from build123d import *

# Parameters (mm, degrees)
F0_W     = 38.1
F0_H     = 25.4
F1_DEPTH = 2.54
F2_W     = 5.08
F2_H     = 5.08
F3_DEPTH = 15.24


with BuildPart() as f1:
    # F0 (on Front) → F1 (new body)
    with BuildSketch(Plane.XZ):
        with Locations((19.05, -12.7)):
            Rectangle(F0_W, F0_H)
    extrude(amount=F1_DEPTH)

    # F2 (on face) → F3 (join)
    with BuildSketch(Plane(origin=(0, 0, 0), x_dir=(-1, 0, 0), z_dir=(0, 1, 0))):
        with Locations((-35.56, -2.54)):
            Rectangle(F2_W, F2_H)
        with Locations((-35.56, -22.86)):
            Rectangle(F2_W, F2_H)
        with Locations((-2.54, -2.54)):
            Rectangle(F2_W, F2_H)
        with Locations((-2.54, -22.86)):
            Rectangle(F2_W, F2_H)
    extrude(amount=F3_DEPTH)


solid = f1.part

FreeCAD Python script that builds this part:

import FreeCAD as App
import Part
import Sketcher
from FreeCAD import Vector
Q = App.Units.Quantity


def add_polygon(sketch, points):
    """Adds a closed chain of lines whose ends are joined by coincident constraints."""
    first, n = sketch.GeometryCount, len(points)
    for a, b in zip(points, points[1:] + points[:1]):
        sketch.addGeometry(Part.LineSegment(App.Vector(*a, 0), App.Vector(*b, 0)), False)
    for i in range(n):
        sketch.addConstraint(Sketcher.Constraint("Coincident", first + i, 2, first + (i + 1) % n, 1))

doc = App.newDocument("Part")
body = doc.addObject("PartDesign::Body", "Body")

# Sketch on XZ plane
sketch1 = body.newObject("Sketcher::SketchObject", "Sketch")
sketch1.AttachmentSupport = (doc.getObject("XZ_Plane"), [""])
sketch1.MapMode = "FlatFace"
add_polygon(sketch1, [(0, 0), (0, -25), (38, -25), (38, 0)])  # lines 0-3
sketch1.addConstraint(Sketcher.Constraint("Vertical", 0))
sketch1.addConstraint(Sketcher.Constraint("Horizontal", 1))
sketch1.addConstraint(Sketcher.Constraint("Vertical", 2))
sketch1.addConstraint(Sketcher.Constraint("Horizontal", 3))
sketch1.addConstraint(Sketcher.Constraint("Coincident", 3, 2, -1, 1))
sketch1.addConstraint(Sketcher.Constraint("DistanceY", 0, 2, 0, 1, Q("1 in")))
sketch1.addConstraint(Sketcher.Constraint("DistanceX", 1, 1, 1, 2, Q("1.5 in")))
pad1 = body.newObject("PartDesign::Pad", "Pad")
pad1.Profile = sketch1
pad1.Length = Q("0.1 in")

# Sketch on XZ plane
sketch2 = body.newObject("Sketcher::SketchObject", "Sketch001")
sketch2.AttachmentSupport = (doc.getObject("XZ_Plane"), [""])
sketch2.MapMode = "FlatFace"
add_polygon(sketch2, [(38, 0), (38, -5), (33, -5), (33, 0)])  # lines 0-3
add_polygon(sketch2, [(38, -20), (38, -25), (33, -25), (33, -20)])  # lines 4-7
add_polygon(sketch2, [(5, 0), (5, -5), (0, -5), (0, 0)])  # lines 8-11
add_polygon(sketch2, [(5, -20), (5, -25), (0, -25), (0, -20)])  # lines 12-15
sketch2.addConstraint(Sketcher.Constraint("Vertical", 0))
sketch2.addConstraint(Sketcher.Constraint("Horizontal", 1))
sketch2.addConstraint(Sketcher.Constraint("Vertical", 2))
sketch2.addConstraint(Sketcher.Constraint("Horizontal", 3))
sketch2.addConstraint(Sketcher.Constraint("Vertical", 4))
sketch2.addConstraint(Sketcher.Constraint("Horizontal", 5))
sketch2.addConstraint(Sketcher.Constraint("Vertical", 6))
sketch2.addConstraint(Sketcher.Constraint("Horizontal", 7))
sketch2.addConstraint(Sketcher.Constraint("Vertical", 8))
sketch2.addConstraint(Sketcher.Constraint("Horizontal", 9))
sketch2.addConstraint(Sketcher.Constraint("Vertical", 10))
sketch2.addConstraint(Sketcher.Constraint("Horizontal", 11))
sketch2.addConstraint(Sketcher.Constraint("Vertical", 12))
sketch2.addConstraint(Sketcher.Constraint("Horizontal", 13))
sketch2.addConstraint(Sketcher.Constraint("Vertical", 14))
sketch2.addConstraint(Sketcher.Constraint("Horizontal", 15))
sketch2.addConstraint(Sketcher.Constraint("Coincident", 10, 2, -1, 1))
sketch2.addConstraint(Sketcher.Constraint("PointOnObject", 2, 2, -1))
sketch2.addConstraint(Sketcher.Constraint("PointOnObject", 13, 2, -2))
sketch2.addConstraint(Sketcher.Constraint("Horizontal", 1, 2, 8, 2))
sketch2.addConstraint(Sketcher.Constraint("Horizontal", 5, 2, 12, 2))
sketch2.addConstraint(Sketcher.Constraint("Horizontal", 7, 2, 14, 2))
sketch2.addConstraint(Sketcher.Constraint("Vertical", 3, 2, 4, 2))
sketch2.addConstraint(Sketcher.Constraint("Vertical", 2, 2, 5, 2))
sketch2.addConstraint(Sketcher.Constraint("Vertical", 11, 2, 12, 2))
sketch2.addConstraint(Sketcher.Constraint("Equal", 7, 9))
sketch2.addConstraint(Sketcher.Constraint("Equal", 15, 0))
sketch2.addConstraint(Sketcher.Constraint("Equal", 2, 4))
sketch2.addConstraint(Sketcher.Constraint("DistanceX", 1, 2, 1, 1, Q("0.2 in")))
sketch2.addConstraint(Sketcher.Constraint("DistanceY", 4, 2, -1, 1, Q("1 in")))
sketch2.addConstraint(Sketcher.Constraint("DistanceX", -1, 1, 0, 2, Q("1.5 in")))
pad2 = body.newObject("PartDesign::Pad", "Pad001")
pad2.Profile = sketch2
pad2.Length = Q("0.6 in")
pad2.Reversed = True

doc.recompute()
